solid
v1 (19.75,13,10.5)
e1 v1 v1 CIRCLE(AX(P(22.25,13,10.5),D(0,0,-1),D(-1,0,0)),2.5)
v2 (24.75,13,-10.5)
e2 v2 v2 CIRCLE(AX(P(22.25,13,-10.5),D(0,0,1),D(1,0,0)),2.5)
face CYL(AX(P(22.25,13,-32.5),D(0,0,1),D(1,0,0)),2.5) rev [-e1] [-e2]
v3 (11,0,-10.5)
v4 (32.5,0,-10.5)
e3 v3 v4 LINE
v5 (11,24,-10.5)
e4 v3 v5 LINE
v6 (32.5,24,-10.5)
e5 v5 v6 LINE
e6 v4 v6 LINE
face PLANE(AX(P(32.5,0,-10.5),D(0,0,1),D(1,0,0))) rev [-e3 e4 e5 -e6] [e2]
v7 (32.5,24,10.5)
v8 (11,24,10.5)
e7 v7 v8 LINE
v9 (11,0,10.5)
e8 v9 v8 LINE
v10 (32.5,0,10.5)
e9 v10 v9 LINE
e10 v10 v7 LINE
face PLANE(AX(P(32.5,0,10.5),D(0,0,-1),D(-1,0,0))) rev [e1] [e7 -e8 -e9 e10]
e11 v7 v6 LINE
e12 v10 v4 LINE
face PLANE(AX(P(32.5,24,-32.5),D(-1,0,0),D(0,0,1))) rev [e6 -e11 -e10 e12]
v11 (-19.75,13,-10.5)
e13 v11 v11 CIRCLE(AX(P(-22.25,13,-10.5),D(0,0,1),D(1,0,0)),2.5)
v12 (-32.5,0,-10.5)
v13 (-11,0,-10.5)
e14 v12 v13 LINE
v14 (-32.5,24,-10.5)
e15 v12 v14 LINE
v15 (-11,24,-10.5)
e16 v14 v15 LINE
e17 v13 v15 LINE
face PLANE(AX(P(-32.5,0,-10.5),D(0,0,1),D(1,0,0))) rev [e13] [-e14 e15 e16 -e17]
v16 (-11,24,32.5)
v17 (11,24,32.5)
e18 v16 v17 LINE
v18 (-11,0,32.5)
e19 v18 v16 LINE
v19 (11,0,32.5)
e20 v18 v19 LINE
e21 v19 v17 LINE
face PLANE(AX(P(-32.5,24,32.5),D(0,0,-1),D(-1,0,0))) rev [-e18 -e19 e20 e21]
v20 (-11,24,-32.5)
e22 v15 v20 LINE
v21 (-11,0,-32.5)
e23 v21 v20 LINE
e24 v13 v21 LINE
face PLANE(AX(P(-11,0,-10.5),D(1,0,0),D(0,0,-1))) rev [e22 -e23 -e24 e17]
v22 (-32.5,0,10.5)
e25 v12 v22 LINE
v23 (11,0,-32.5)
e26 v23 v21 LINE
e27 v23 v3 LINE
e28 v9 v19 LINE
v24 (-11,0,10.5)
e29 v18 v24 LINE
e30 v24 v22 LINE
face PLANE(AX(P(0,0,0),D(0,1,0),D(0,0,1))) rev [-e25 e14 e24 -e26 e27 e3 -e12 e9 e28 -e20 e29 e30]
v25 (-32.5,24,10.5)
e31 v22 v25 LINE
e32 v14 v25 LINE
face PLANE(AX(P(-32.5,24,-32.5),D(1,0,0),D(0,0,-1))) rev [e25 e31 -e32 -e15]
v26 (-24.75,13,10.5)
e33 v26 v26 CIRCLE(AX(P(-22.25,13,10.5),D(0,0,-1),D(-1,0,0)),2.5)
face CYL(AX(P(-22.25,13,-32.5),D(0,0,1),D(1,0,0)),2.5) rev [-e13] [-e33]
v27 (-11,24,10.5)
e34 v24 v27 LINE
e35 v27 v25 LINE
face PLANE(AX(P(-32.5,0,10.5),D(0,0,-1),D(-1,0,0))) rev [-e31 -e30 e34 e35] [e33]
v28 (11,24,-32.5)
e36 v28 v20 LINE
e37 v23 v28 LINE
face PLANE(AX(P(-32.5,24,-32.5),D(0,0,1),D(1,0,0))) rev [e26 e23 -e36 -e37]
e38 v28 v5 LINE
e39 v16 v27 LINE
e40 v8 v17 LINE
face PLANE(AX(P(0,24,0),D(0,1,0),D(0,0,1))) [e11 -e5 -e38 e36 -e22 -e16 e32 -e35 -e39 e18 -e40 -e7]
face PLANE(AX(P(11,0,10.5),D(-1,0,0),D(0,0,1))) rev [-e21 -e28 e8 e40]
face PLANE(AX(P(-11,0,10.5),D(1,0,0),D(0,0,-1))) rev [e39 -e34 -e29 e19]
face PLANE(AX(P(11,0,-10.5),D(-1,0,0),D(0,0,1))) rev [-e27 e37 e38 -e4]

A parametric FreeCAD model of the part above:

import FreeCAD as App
import Part
import Sketcher

doc = App.newDocument("Part")
body = doc.addObject("PartDesign::Body", "Body")

sketch1 = body.newObject("Sketcher::SketchObject", "Sketch")
sketch1.AttachmentSupport = (doc.getObject("XZ_Plane"), [""])
sketch1.MapMode = "FlatFace"
sketch1.addGeometry([
    Part.LineSegment(App.Vector(-32.5, -32.5, 0), App.Vector(-32.5, 32.5, 0)),
    Part.LineSegment(App.Vector(-32.5, 32.5, 0), App.Vector(32.5, 32.5, 0)),
    Part.LineSegment(App.Vector(32.5, 32.5, 0), App.Vector(32.5, -32.5, 0)),
    Part.LineSegment(App.Vector(32.5, -32.5, 0), App.Vector(-32.5, -32.5, 0)),
], False)
sketch1.addConstraint([
    Sketcher.Constraint("Coincident", 0, 2, 1, 1),
    Sketcher.Constraint("Coincident", 1, 2, 2, 1),
    Sketcher.Constraint("Coincident", 2, 2, 3, 1),
    Sketcher.Constraint("Coincident", 3, 2, 0, 1),
    Sketcher.Constraint("Vertical", 0),
    Sketcher.Constraint("Horizontal", 1),
    Sketcher.Constraint("Vertical", 2),
    Sketcher.Constraint("Horizontal", 3),
    Sketcher.Constraint("Symmetric", 0, 2, 2, 2, -1, 1),
    Sketcher.Constraint("Equal", 3, 0),
    Sketcher.Constraint("DistanceX", 1, 1, 1, 2, 65.0),
])
pad1 = body.newObject("PartDesign::Pad", "Pad")
pad1.Profile = sketch1
pad1.Length = 24
pad1.Reversed = True

sketch2 = body.newObject("Sketcher::SketchObject", "Sketch001")
sketch2.AttachmentSupport = (doc.getObject("XZ_Plane"), [""])
sketch2.MapMode = "FlatFace"
sketch2.AttachmentOffset = App.Placement(App.Vector(0, 0, -24), App.Rotation())
sketch2.addGeometry([
    Part.LineSegment(App.Vector(-32.5, -32.5, 0), App.Vector(-32.5, -10.5, 0)),
    Part.LineSegment(App.Vector(-32.5, -10.5, 0), App.Vector(-11, -10.5, 0)),
    Part.LineSegment(App.Vector(-11, -10.5, 0), App.Vector(-11, -32.5, 0)),
    Part.LineSegment(App.Vector(-11, -32.5, 0), App.Vector(-32.5, -32.5, 0)),
    Part.LineSegment(App.Vector(11, -32.5, 0), App.Vector(11, -10.5, 0)),
    Part.LineSegment(App.Vector(11, -10.5, 0), App.Vector(32.5, -10.5, 0)),
    Part.LineSegment(App.Vector(32.5, -10.5, 0), App.Vector(32.5, -32.5, 0)),
    Part.LineSegment(App.Vector(32.5, -32.5, 0), App.Vector(11, -32.5, 0)),
    Part.LineSegment(App.Vector(11, 10.5, 0), App.Vector(11, 32.5, 0)),
    Part.LineSegment(App.Vector(11, 32.5, 0), App.Vector(32.5, 32.5, 0)),
    Part.LineSegment(App.Vector(32.5, 32.5, 0), App.Vector(32.5, 10.5, 0)),
    Part.LineSegment(App.Vector(32.5, 10.5, 0), App.Vector(11, 10.5, 0)),
    Part.LineSegment(App.Vector(-32.5, 10.5, 0), App.Vector(-32.5, 32.5, 0)),
    Part.LineSegment(App.Vector(-32.5, 32.5, 0), App.Vector(-11, 32.5, 0)),
    Part.LineSegment(App.Vector(-11, 32.5, 0), App.Vector(-11, 10.5, 0)),
    Part.LineSegment(App.Vector(-11, 10.5, 0), App.Vector(-32.5, 10.5, 0)),
], False)
sketch2.addConstraint([
    Sketcher.Constraint("Coincident", 0, 2, 1, 1),
    Sketcher.Constraint("Coincident", 1, 2, 2, 1),
    Sketcher.Constraint("Coincident", 2, 2, 3, 1),
    Sketcher.Constraint("Coincident", 3, 2, 0, 1),
    Sketcher.Constraint("Coincident", 4, 2, 5, 1),
    Sketcher.Constraint("Coincident", 5, 2, 6, 1),
    Sketcher.Constraint("Coincident", 6, 2, 7, 1),
    Sketcher.Constraint("Coincident", 7, 2, 4, 1),
    Sketcher.Constraint("Coincident", 8, 2, 9, 1),
    Sketcher.Constraint("Coincident", 9, 2, 10, 1),
    Sketcher.Constraint("Coincident", 10, 2, 11, 1),
    Sketcher.Constraint("Coincident", 11, 2, 8, 1),
    Sketcher.Constraint("Coincident", 12, 2, 13, 1),
    Sketcher.Constraint("Coincident", 13, 2, 14, 1),
    Sketcher.Constraint("Coincident", 14, 2, 15, 1),
    Sketcher.Constraint("Coincident", 15, 2, 12, 1),
    Sketcher.Constraint("Vertical", 0),
    Sketcher.Constraint("Horizontal", 1),
    Sketcher.Constraint("Vertical", 2),
    Sketcher.Constraint("Horizontal", 3),
    Sketcher.Constraint("Vertical", 4),
    Sketcher.Constraint("Horizontal", 5),
    Sketcher.Constraint("Vertical", 6),
    Sketcher.Constraint("Horizontal", 7),
    Sketcher.Constraint("Vertical", 8),
    Sketcher.Constraint("Horizontal", 9),
    Sketcher.Constraint("Vertical", 10),
    Sketcher.Constraint("Horizontal", 11),
    Sketcher.Constraint("Vertical", 12),
    Sketcher.Constraint("Horizontal", 13),
    Sketcher.Constraint("Vertical", 14),
    Sketcher.Constraint("Horizontal", 15),
    Sketcher.Constraint("Symmetric", 2, 2, 8, 2, -1, 1),
    Sketcher.Constraint("Symmetric", 0, 2, 10, 2, -1, 1),
    Sketcher.Constraint("Symmetric", 6, 2, 12, 2, -1, 1),
    Sketcher.Constraint("Symmetric", 4, 2, 14, 2, -1, 1),
    Sketcher.Constraint("Symmetric", 1, 2, 4, 2, -2),
    Sketcher.Constraint("Symmetric", 3, 2, 6, 2, -2),
    Sketcher.Constraint("DistanceY", 0, 1, 0, 2, 22.0),
    Sketcher.Constraint("DistanceX", 1, 1, 1, 2, 21.5),
    Sketcher.Constraint("DistanceX", 1, 2, -1, 1, 11.0),
    Sketcher.Constraint("DistanceY", 4, 2, 8, 2, 43.0),
])
pocket1 = body.newObject("PartDesign::Pocket", "Pocket")
pocket1.Profile = sketch2
pocket1.Type = "ThroughAll"
pocket1.Reversed = True

sketch3 = body.newObject("Sketcher::SketchObject", "Sketch002")
sketch3.AttachmentSupport = (doc.getObject("XY_Plane"), [""])
sketch3.MapMode = "FlatFace"
sketch3.addGeometry([
    Part.Circle(App.Vector(-22.25, 13, 0), App.Vector(0, 0, 1), 2.5),
    Part.Circle(App.Vector(22.25, 13, 0), App.Vector(0, 0, 1), 2.5),
], False)
sketch3.addConstraint([
    Sketcher.Constraint("Equal", 0, 1),
    Sketcher.Constraint("Symmetric", 0, 3, 1, 3, -2),
    Sketcher.Constraint("Diameter", 0, 5.0),
    Sketcher.Constraint("DistanceY", -1, 1, 0, 3, 13.0),
    Sketcher.Constraint("DistanceX", 0, 3, 1, 3, 44.5),
])
pocket2 = body.newObject("PartDesign::Pocket", "Pocket001")
pocket2.Profile = sketch3
pocket2.Type = "ThroughAll"
pocket2.Midplane = True

doc.recompute()
